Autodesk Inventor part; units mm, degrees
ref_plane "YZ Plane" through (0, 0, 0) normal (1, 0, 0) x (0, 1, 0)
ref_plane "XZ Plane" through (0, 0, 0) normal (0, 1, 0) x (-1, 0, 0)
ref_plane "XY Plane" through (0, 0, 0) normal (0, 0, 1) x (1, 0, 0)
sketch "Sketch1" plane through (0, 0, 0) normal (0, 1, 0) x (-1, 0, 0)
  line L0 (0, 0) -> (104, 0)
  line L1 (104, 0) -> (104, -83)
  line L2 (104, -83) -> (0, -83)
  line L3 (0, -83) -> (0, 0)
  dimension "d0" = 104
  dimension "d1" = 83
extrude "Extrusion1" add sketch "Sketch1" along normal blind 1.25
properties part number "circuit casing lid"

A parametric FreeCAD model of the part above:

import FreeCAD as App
import Part
import Sketcher

V = App.Vector
Q = App.Units.Quantity

doc = App.newDocument("Part")
params = doc.addObject("Spreadsheet::Sheet", "Params")
for row, (alias, value) in enumerate([
    ("sketch1_width", "104 mm"),
    ("sketch1_height", "83 mm"),
    ("pad1_length", "1.25 mm"),
], start=1):
    params.set(f"A{row}", alias)
    params.set(f"B{row}", "=" + value)
    params.setAlias(f"B{row}", alias)

body = doc.addObject("PartDesign::Body", "Body")

# Sketch on XZ plane
sketch1 = body.newObject("Sketcher::SketchObject", "Sketch")
sketch1.AttachmentSupport = (doc.getObject("XZ_Plane"), [""])
sketch1.MapMode = "FlatFace"
sketch1.addGeometry(Part.LineSegment(V(-104, 0, 0), V(0, 0, 0)), False)
sketch1.addGeometry(Part.LineSegment(V(0, 0, 0), V(0, -83, 0)), False)
sketch1.addGeometry(Part.LineSegment(V(0, -83, 0), V(-104, -83, 0)), False)
sketch1.addGeometry(Part.LineSegment(V(-104, -83, 0), V(-104, 0, 0)), False)
sketch1.addConstraint(Sketcher.Constraint("Coincident", 0, 2, 1, 1))
sketch1.addConstraint(Sketcher.Constraint("Coincident", 1, 2, 2, 1))
sketch1.addConstraint(Sketcher.Constraint("Coincident", 2, 2, 3, 1))
sketch1.addConstraint(Sketcher.Constraint("Coincident", 3, 2, 0, 1))
sketch1.addConstraint(Sketcher.Constraint("Horizontal", 0))
sketch1.addConstraint(Sketcher.Constraint("Vertical", 1))
sketch1.addConstraint(Sketcher.Constraint("Horizontal", 2))
sketch1.addConstraint(Sketcher.Constraint("Vertical", 3))
sketch1.addConstraint(Sketcher.Constraint("Coincident", 0, 2, -1, 1))
sketch1.addConstraint(Sketcher.Constraint("DistanceX", 0, 1, 0, 2, Q("104 mm")))
sketch1.addConstraint(Sketcher.Constraint("DistanceY", 1, 2, 1, 1, Q("83 mm")))
sketch1.setExpression("Constraints[9]", "Params.sketch1_width")
sketch1.setExpression("Constraints[10]", "Params.sketch1_height")
pad1 = body.newObject("PartDesign::Pad", "Pad")
pad1.Profile = sketch1
pad1.setExpression("Length", "Params.pad1_length")
pad1.Reversed = True

doc.recompute()
